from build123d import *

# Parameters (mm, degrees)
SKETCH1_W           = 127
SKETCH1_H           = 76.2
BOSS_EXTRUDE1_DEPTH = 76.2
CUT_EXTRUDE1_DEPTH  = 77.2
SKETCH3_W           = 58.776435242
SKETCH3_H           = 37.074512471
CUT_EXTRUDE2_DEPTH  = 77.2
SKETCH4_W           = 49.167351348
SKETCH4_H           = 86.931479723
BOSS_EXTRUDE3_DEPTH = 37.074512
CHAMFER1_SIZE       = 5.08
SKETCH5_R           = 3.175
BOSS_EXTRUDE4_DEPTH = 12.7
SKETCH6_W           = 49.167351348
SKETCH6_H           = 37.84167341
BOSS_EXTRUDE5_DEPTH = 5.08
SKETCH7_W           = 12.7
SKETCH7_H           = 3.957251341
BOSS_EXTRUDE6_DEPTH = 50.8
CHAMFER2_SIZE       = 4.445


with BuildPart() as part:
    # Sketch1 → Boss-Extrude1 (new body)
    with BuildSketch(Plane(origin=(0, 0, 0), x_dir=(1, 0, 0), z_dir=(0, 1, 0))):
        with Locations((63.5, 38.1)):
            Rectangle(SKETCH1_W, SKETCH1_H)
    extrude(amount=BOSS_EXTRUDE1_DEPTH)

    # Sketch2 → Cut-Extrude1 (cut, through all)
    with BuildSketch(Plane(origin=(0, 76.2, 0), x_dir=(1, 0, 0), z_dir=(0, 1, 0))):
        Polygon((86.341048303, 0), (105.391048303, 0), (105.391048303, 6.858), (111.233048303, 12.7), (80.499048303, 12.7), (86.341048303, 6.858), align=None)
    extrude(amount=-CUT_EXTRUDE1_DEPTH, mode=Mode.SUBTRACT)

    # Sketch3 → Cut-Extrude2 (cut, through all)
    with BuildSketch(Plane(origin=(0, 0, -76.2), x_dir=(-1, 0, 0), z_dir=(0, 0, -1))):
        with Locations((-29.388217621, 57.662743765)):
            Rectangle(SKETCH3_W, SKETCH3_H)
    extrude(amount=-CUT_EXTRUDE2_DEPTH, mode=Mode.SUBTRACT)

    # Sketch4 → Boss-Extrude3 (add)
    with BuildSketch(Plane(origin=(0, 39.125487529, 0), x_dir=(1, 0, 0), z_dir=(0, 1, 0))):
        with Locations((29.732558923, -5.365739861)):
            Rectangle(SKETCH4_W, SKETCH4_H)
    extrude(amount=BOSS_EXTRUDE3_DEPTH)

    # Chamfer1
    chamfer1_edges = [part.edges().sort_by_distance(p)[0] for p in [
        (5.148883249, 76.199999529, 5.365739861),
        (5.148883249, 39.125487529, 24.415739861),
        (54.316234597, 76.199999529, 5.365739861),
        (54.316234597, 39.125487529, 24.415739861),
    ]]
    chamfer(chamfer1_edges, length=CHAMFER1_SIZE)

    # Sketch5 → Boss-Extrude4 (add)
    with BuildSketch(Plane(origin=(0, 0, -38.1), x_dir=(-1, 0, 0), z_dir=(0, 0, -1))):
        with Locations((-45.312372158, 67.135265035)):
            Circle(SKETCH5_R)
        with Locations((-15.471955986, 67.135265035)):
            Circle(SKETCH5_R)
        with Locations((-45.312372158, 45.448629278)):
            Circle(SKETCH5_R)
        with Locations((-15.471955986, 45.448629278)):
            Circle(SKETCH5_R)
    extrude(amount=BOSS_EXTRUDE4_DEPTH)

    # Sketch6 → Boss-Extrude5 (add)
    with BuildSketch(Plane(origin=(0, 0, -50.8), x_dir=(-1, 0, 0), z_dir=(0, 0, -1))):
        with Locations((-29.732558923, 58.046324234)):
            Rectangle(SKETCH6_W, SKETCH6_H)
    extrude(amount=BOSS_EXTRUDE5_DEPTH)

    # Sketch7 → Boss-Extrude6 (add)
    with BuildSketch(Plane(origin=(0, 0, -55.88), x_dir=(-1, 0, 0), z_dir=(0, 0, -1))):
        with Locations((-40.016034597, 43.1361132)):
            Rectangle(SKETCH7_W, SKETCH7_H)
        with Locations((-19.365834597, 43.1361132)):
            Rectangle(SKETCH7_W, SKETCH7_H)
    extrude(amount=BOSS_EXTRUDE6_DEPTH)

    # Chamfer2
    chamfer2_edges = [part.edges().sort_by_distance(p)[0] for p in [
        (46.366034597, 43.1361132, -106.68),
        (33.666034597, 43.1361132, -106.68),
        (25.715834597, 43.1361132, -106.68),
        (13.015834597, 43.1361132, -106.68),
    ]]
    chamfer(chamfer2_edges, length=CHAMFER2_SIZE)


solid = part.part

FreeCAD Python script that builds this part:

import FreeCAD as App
import Part
import Sketcher
from FreeCAD import Vector
Q = App.Units.Quantity


def edges_at(feature, points):
    """Names of the edges that pass closest to the given points."""
    edges = feature.Shape.Edges
    near = lambda p: min(range(len(edges)), key=lambda i: edges[i].distToShape(Part.Vertex(*p))[0])
    return sorted({f"Edge{near(p) + 1}" for p in points})

doc = App.newDocument("Part")
body = doc.addObject("PartDesign::Body", "Body")

# Sketch on XZ plane
sketch1 = body.newObject("Sketcher::SketchObject", "Sketch")
sketch1.AttachmentSupport = (doc.getObject("XZ_Plane"), [""])
sketch1.MapMode = "FlatFace"
sketch1.addGeometry([
    Part.LineSegment(Vector(0, -76, 0), Vector(0, 0, 0)),
    Part.LineSegment(Vector(0, 0, 0), Vector(127, 0, 0)),
    Part.LineSegment(Vector(127, 0, 0), Vector(127, -76, 0)),
    Part.LineSegment(Vector(127, -76, 0), Vector(0, -76, 0)),
], False)
sketch1.addConstraint([
    Sketcher.Constraint("Coincident", 0, 2, 1, 1),
    Sketcher.Constraint("Coincident", 1, 2, 2, 1),
    Sketcher.Constraint("Coincident", 2, 2, 3, 1),
    Sketcher.Constraint("Coincident", 3, 2, 0, 1),
    Sketcher.Constraint("Vertical", 0),
    Sketcher.Constraint("Horizontal", 1),
    Sketcher.Constraint("Vertical", 2),
    Sketcher.Constraint("Horizontal", 3),
    Sketcher.Constraint("Coincident", 0, 2, -1, 1),
    Sketcher.Constraint("DistanceX", 1, 1, 1, 2, Q("5 in")),
    Sketcher.Constraint("DistanceY", 0, 1, 0, 2, Q("3 in")),
])
pad1 = body.newObject("PartDesign::Pad", "Pad")
pad1.Profile = sketch1
pad1.Length = Q("3 in")
pad1.Reversed = True

# Sketch on XZ plane
sketch2 = body.newObject("Sketcher::SketchObject", "Sketch001")
sketch2.AttachmentSupport = (doc.getObject("XZ_Plane"), [""])
sketch2.MapMode = "FlatFace"
sketch2.AttachmentOffset = App.Placement(Vector(0, 0, -3 * 25.4), App.Rotation())
sketch2.addGeometry([
    Part.LineSegment(Vector(86, 0, 0), Vector(105, 0, 0)),  # 0
    Part.LineSegment(Vector(105, 0, 0), Vector(105, -7, 0)),  # 1
    Part.LineSegment(Vector(105, -7, 0), Vector(111, -13, 0)),  # 2
    Part.LineSegment(Vector(111, -13, 0), Vector(80, -13, 0)),  # 3
    Part.LineSegment(Vector(80, -13, 0), Vector(86, -7, 0)),  # 4
    Part.LineSegment(Vector(86, -7, 0), Vector(86, 0, 0)),  # 5
], False)
sketch2.addConstraint([
    Sketcher.Constraint("Coincident", 0, 2, 1, 1),
    Sketcher.Constraint("Coincident", 1, 2, 2, 1),
    Sketcher.Constraint("Coincident", 2, 2, 3, 1),
    Sketcher.Constraint("Coincident", 3, 2, 4, 1),
    Sketcher.Constraint("Coincident", 4, 2, 5, 1),
    Sketcher.Constraint("Coincident", 5, 2, 0, 1),
    Sketcher.Constraint("Horizontal", 0),
    Sketcher.Constraint("Vertical", 1),
    Sketcher.Constraint("Horizontal", 3),
    Sketcher.Constraint("Vertical", 5),
    Sketcher.Constraint("PointOnObject", 0, 2, -1),
    Sketcher.Constraint("Perpendicular", 2, 4),
    Sketcher.Constraint("Horizontal", 1, 2, 4, 2),
    Sketcher.Constraint("Equal", 2, 4),
    Sketcher.Constraint("DistanceX", 0, 1, 0, 2, Q("0.75 in")),
    Sketcher.Constraint("DistanceX", 3, 2, 3, 1, Q("1.21 in")),
    Sketcher.Constraint("DistanceY", 1, 2, 1, 1, Q("0.27 in")),
    Sketcher.Constraint("DistanceX", -1, 1, 0, 2, 105.391048),
])
pocket1 = body.newObject("PartDesign::Pocket", "Pocket")
pocket1.Profile = sketch2
pocket1.Type = "ThroughAll"
pocket1.Reversed = True

# Sketch on XY plane
sketch3 = body.newObject("Sketcher::SketchObject", "Sketch002")
sketch3.AttachmentSupport = (doc.getObject("XY_Plane"), [""])
sketch3.MapMode = "FlatFace"
sketch3.AttachmentOffset = App.Placement(Vector(0, 0, -3 * 25.4), App.Rotation())
sketch3.addGeometry([
    Part.LineSegment(Vector(59, 76, 0), Vector(59, 39, 0)),
    Part.LineSegment(Vector(59, 39, 0), Vector(0, 39, 0)),
    Part.LineSegment(Vector(0, 39, 0), Vector(0, 76, 0)),
    Part.LineSegment(Vector(0, 76, 0), Vector(59, 76, 0)),
], False)
sketch3.addConstraint([
    Sketcher.Constraint("Coincident", 0, 2, 1, 1),
    Sketcher.Constraint("Coincident", 1, 2, 2, 1),
    Sketcher.Constraint("Coincident", 2, 2, 3, 1),
    Sketcher.Constraint("Coincident", 3, 2, 0, 1),
    Sketcher.Constraint("Vertical", 0),
    Sketcher.Constraint("Horizontal", 1),
    Sketcher.Constraint("Vertical", 2),
    Sketcher.Constraint("Horizontal", 3),
    Sketcher.Constraint("PointOnObject", 1, 2, -2),
    Sketcher.Constraint("DistanceY", -1, 1, 2, 2, Q("3 in")),
    Sketcher.Constraint("DistanceX", 1, 2, 1, 1, 58.776435),
    Sketcher.Constraint("DistanceY", 0, 2, 0, 1, 37.074512),
])
pocket2 = body.newObject("PartDesign::Pocket", "Pocket001")
pocket2.Profile = sketch3
pocket2.Type = "ThroughAll"
pocket2.Reversed = True

# Sketch on XZ plane
sketch4 = body.newObject("Sketcher::SketchObject", "Sketch003")
sketch4.AttachmentSupport = (doc.getObject("XZ_Plane"), [""])
sketch4.MapMode = "FlatFace"
sketch4.AttachmentOffset = App.Placement(Vector(0, 0, -39.125488), App.Rotation())
sketch4.addGeometry([
    Part.LineSegment(Vector(5, -38, 0), Vector(5, 49, 0)),
    Part.LineSegment(Vector(5, 49, 0), Vector(54, 49, 0)),
    Part.LineSegment(Vector(54, 49, 0), Vector(54, -38, 0)),
    Part.LineSegment(Vector(54, -38, 0), Vector(5, -38, 0)),
], False)
sketch4.addConstraint([
    Sketcher.Constraint("Coincident", 0, 2, 1, 1),
    Sketcher.Constraint("Coincident", 1, 2, 2, 1),
    Sketcher.Constraint("Coincident", 2, 2, 3, 1),
    Sketcher.Constraint("Coincident", 3, 2, 0, 1),
    Sketcher.Constraint("Vertical", 0),
    Sketcher.Constraint("Horizontal", 1),
    Sketcher.Constraint("Vertical", 2),
    Sketcher.Constraint("Horizontal", 3),
    Sketcher.Constraint("DistanceY", 2, 2, -1, 1, Q("1.5 in")),
    Sketcher.Constraint("DistanceX", 1, 1, 1, 2, 49.167351),
    Sketcher.Constraint("DistanceY", 0, 1, 0, 2, 86.93148),
    Sketcher.Constraint("DistanceX", -1, 1, 0, 2, 5.148883),
])
pad2 = body.newObject("PartDesign::Pad", "Pad001")
pad2.Profile = sketch4
pad2.Length = 37.074512
pad2.Reversed = True
doc.recompute()

chamfer = body.newObject("PartDesign::Chamfer", "Chamfer")
chamfer.Base = (pad2, edges_at(pad2, [
    (5.149, 76.2, 5.366),
    (5.149, 39.125, 24.416),
    (54.316, 76.2, 5.366),
    (54.316, 39.125, 24.416),
]))
chamfer.Size = Q("0.2 in")

# Sketch on XY plane
sketch5 = body.newObject("Sketcher::SketchObject", "Sketch004")
sketch5.AttachmentSupport = (doc.getObject("XY_Plane"), [""])
sketch5.MapMode = "FlatFace"
sketch5.AttachmentOffset = App.Placement(Vector(0, 0, -1.5 * 25.4), App.Rotation())
sketch5.addGeometry([
    Part.Circle(Vector(45.3, 67.1, 0), Vector(0, 0, 1), 3.2),
    Part.Circle(Vector(15.5, 67.1, 0), Vector(0, 0, 1), 3.2),
    Part.Circle(Vector(45.3, 45.4, 0), Vector(0, 0, 1), 3.2),
    Part.Circle(Vector(15.5, 45.4, 0), Vector(0, 0, 1), 3.2),
], False)
sketch5.addConstraint([
    Sketcher.Constraint("Equal", 0, 1),
    Sketcher.Constraint("Equal", 1, 2),
    Sketcher.Constraint("Equal", 2, 3),
    Sketcher.Constraint("Horizontal", 0, 3, 1, 3),
    Sketcher.Constraint("Horizontal", 2, 3, 3, 3),
    Sketcher.Constraint("Vertical", 0, 3, 2, 3),
    Sketcher.Constraint("Vertical", 1, 3, 3, 3),
    Sketcher.Constraint("Diameter", 0, Q("0.25 in")),
    Sketcher.Constraint("DistanceY", -1, 1, 2, 3, 45.448629),
    Sketcher.Constraint("DistanceX", -1, 1, 0, 3, 45.312372),
    Sketcher.Constraint("DistanceY", -1, 1, 0, 3, 67.135265),
    Sketcher.Constraint("DistanceX", -1, 1, 1, 3, 15.471956),
])
pad3 = body.newObject("PartDesign::Pad", "Pad002")
pad3.Profile = sketch5
pad3.Length = Q("0.5 in")
pad3.Reversed = True

# Sketch on XY plane
sketch6 = body.newObject("Sketcher::SketchObject", "Sketch005")
sketch6.AttachmentSupport = (doc.getObject("XY_Plane"), [""])
sketch6.MapMode = "FlatFace"
sketch6.AttachmentOffset = App.Placement(Vector(0, 0, -2 * 25.4), App.Rotation())
sketch6.addGeometry([
    Part.LineSegment(Vector(54, 77, 0), Vector(54, 39, 0)),
    Part.LineSegment(Vector(54, 39, 0), Vector(5, 39, 0)),
    Part.LineSegment(Vector(5, 39, 0), Vector(5, 77, 0)),
    Part.LineSegment(Vector(5, 77, 0), Vector(54, 77, 0)),
], False)
sketch6.addConstraint([
    Sketcher.Constraint("Coincident", 0, 2, 1, 1),
    Sketcher.Constraint("Coincident", 1, 2, 2, 1),
    Sketcher.Constraint("Coincident", 2, 2, 3, 1),
    Sketcher.Constraint("Coincident", 3, 2, 0, 1),
    Sketcher.Constraint("Vertical", 0),
    Sketcher.Constraint("Horizontal", 1),
    Sketcher.Constraint("Vertical", 2),
    Sketcher.Constraint("Horizontal", 3),
    Sketcher.Constraint("DistanceX", 1, 2, 1, 1, 49.167351),
    Sketcher.Constraint("DistanceY", 0, 2, 0, 1, 37.841673),
    Sketcher.Constraint("DistanceY", -1, 1, 2, 2, 76.967161),
    Sketcher.Constraint("DistanceX", -1, 1, 0, 2, 54.316235),
])
pad4 = body.newObject("PartDesign::Pad", "Pad003")
pad4.Profile = sketch6
pad4.Length = Q("0.2 in")
pad4.Reversed = True

# Sketch on XY plane
sketch7 = body.newObject("Sketcher::SketchObject", "Sketch006")
sketch7.AttachmentSupport = (doc.getObject("XY_Plane"), [""])
sketch7.MapMode = "FlatFace"
sketch7.AttachmentOffset = App.Placement(Vector(0, 0, -2.2 * 25.4), App.Rotation())
sketch7.addGeometry([
    Part.LineSegment(Vector(46.4, 45.1, 0), Vector(46.4, 41.2, 0)),  # 0
    Part.LineSegment(Vector(46.4, 41.2, 0), Vector(33.7, 41.2, 0)),  # 1
    Part.LineSegment(Vector(33.7, 41.2, 0), Vector(33.7, 45.1, 0)),  # 2
    Part.LineSegment(Vector(33.7, 45.1, 0), Vector(46.4, 45.1, 0)),  # 3
    Part.LineSegment(Vector(25.7, 45.1, 0), Vector(25.7, 41.2, 0)),  # 4
    Part.LineSegment(Vector(25.7, 41.2, 0), Vector(13, 41.2, 0)),  # 5
    Part.LineSegment(Vector(13, 41.2, 0), Vector(13, 45.1, 0)),  # 6
    Part.LineSegment(Vector(13, 45.1, 0), Vector(25.7, 45.1, 0)),  # 7
], False)
sketch7.addConstraint([
    Sketcher.Constraint("Coincident", 0, 2, 1, 1),
    Sketcher.Constraint("Coincident", 1, 2, 2, 1),
    Sketcher.Constraint("Coincident", 2, 2, 3, 1),
    Sketcher.Constraint("Coincident", 3, 2, 0, 1),
    Sketcher.Constraint("Coincident", 4, 2, 5, 1),
    Sketcher.Constraint("Coincident", 5, 2, 6, 1),
    Sketcher.Constraint("Coincident", 6, 2, 7, 1),
    Sketcher.Constraint("Coincident", 7, 2, 4, 1),
    Sketcher.Constraint("Vertical", 0),
    Sketcher.Constraint("Horizontal", 1),
    Sketcher.Constraint("Vertical", 2),
    Sketcher.Constraint("Horizontal", 3),
    Sketcher.Constraint("Vertical", 4),
    Sketcher.Constraint("Horizontal", 5),
    Sketcher.Constraint("Vertical", 6),
    Sketcher.Constraint("Horizontal", 7),
    Sketcher.Constraint("Horizontal", 1, 2, 4, 2),
    Sketcher.Constraint("Horizontal", 3, 2, 6, 2),
    Sketcher.Constraint("Equal", 3, 5),
    Sketcher.Constraint("DistanceX", 1, 2, 1, 1, Q("0.5 in")),
    Sketcher.Constraint("DistanceX", 4, 2, 1, 2, Q("0.313 in")),
    Sketcher.Constraint("DistanceY", 0, 2, 0, 1, 3.957251),
    Sketcher.Constraint("DistanceY", -1, 1, 2, 2, 45.114739),
    Sketcher.Constraint("DistanceX", -1, 1, 0, 2, 46.366035),
])
pad5 = body.newObject("PartDesign::Pad", "Pad004")
pad5.Profile = sketch7
pad5.Length = Q("2 in")
pad5.Reversed = True
doc.recompute()

chamfer2 = body.newObject("PartDesign::Chamfer", "Chamfer001")
chamfer2.Base = (pad5, edges_at(pad5, [
    (46.366, 43.136, -106.68),
    (33.666, 43.136, -106.68),
    (25.716, 43.136, -106.68),
    (13.016, 43.136, -106.68),
]))
chamfer2.Size = Q("0.175 in")

doc.recompute()
